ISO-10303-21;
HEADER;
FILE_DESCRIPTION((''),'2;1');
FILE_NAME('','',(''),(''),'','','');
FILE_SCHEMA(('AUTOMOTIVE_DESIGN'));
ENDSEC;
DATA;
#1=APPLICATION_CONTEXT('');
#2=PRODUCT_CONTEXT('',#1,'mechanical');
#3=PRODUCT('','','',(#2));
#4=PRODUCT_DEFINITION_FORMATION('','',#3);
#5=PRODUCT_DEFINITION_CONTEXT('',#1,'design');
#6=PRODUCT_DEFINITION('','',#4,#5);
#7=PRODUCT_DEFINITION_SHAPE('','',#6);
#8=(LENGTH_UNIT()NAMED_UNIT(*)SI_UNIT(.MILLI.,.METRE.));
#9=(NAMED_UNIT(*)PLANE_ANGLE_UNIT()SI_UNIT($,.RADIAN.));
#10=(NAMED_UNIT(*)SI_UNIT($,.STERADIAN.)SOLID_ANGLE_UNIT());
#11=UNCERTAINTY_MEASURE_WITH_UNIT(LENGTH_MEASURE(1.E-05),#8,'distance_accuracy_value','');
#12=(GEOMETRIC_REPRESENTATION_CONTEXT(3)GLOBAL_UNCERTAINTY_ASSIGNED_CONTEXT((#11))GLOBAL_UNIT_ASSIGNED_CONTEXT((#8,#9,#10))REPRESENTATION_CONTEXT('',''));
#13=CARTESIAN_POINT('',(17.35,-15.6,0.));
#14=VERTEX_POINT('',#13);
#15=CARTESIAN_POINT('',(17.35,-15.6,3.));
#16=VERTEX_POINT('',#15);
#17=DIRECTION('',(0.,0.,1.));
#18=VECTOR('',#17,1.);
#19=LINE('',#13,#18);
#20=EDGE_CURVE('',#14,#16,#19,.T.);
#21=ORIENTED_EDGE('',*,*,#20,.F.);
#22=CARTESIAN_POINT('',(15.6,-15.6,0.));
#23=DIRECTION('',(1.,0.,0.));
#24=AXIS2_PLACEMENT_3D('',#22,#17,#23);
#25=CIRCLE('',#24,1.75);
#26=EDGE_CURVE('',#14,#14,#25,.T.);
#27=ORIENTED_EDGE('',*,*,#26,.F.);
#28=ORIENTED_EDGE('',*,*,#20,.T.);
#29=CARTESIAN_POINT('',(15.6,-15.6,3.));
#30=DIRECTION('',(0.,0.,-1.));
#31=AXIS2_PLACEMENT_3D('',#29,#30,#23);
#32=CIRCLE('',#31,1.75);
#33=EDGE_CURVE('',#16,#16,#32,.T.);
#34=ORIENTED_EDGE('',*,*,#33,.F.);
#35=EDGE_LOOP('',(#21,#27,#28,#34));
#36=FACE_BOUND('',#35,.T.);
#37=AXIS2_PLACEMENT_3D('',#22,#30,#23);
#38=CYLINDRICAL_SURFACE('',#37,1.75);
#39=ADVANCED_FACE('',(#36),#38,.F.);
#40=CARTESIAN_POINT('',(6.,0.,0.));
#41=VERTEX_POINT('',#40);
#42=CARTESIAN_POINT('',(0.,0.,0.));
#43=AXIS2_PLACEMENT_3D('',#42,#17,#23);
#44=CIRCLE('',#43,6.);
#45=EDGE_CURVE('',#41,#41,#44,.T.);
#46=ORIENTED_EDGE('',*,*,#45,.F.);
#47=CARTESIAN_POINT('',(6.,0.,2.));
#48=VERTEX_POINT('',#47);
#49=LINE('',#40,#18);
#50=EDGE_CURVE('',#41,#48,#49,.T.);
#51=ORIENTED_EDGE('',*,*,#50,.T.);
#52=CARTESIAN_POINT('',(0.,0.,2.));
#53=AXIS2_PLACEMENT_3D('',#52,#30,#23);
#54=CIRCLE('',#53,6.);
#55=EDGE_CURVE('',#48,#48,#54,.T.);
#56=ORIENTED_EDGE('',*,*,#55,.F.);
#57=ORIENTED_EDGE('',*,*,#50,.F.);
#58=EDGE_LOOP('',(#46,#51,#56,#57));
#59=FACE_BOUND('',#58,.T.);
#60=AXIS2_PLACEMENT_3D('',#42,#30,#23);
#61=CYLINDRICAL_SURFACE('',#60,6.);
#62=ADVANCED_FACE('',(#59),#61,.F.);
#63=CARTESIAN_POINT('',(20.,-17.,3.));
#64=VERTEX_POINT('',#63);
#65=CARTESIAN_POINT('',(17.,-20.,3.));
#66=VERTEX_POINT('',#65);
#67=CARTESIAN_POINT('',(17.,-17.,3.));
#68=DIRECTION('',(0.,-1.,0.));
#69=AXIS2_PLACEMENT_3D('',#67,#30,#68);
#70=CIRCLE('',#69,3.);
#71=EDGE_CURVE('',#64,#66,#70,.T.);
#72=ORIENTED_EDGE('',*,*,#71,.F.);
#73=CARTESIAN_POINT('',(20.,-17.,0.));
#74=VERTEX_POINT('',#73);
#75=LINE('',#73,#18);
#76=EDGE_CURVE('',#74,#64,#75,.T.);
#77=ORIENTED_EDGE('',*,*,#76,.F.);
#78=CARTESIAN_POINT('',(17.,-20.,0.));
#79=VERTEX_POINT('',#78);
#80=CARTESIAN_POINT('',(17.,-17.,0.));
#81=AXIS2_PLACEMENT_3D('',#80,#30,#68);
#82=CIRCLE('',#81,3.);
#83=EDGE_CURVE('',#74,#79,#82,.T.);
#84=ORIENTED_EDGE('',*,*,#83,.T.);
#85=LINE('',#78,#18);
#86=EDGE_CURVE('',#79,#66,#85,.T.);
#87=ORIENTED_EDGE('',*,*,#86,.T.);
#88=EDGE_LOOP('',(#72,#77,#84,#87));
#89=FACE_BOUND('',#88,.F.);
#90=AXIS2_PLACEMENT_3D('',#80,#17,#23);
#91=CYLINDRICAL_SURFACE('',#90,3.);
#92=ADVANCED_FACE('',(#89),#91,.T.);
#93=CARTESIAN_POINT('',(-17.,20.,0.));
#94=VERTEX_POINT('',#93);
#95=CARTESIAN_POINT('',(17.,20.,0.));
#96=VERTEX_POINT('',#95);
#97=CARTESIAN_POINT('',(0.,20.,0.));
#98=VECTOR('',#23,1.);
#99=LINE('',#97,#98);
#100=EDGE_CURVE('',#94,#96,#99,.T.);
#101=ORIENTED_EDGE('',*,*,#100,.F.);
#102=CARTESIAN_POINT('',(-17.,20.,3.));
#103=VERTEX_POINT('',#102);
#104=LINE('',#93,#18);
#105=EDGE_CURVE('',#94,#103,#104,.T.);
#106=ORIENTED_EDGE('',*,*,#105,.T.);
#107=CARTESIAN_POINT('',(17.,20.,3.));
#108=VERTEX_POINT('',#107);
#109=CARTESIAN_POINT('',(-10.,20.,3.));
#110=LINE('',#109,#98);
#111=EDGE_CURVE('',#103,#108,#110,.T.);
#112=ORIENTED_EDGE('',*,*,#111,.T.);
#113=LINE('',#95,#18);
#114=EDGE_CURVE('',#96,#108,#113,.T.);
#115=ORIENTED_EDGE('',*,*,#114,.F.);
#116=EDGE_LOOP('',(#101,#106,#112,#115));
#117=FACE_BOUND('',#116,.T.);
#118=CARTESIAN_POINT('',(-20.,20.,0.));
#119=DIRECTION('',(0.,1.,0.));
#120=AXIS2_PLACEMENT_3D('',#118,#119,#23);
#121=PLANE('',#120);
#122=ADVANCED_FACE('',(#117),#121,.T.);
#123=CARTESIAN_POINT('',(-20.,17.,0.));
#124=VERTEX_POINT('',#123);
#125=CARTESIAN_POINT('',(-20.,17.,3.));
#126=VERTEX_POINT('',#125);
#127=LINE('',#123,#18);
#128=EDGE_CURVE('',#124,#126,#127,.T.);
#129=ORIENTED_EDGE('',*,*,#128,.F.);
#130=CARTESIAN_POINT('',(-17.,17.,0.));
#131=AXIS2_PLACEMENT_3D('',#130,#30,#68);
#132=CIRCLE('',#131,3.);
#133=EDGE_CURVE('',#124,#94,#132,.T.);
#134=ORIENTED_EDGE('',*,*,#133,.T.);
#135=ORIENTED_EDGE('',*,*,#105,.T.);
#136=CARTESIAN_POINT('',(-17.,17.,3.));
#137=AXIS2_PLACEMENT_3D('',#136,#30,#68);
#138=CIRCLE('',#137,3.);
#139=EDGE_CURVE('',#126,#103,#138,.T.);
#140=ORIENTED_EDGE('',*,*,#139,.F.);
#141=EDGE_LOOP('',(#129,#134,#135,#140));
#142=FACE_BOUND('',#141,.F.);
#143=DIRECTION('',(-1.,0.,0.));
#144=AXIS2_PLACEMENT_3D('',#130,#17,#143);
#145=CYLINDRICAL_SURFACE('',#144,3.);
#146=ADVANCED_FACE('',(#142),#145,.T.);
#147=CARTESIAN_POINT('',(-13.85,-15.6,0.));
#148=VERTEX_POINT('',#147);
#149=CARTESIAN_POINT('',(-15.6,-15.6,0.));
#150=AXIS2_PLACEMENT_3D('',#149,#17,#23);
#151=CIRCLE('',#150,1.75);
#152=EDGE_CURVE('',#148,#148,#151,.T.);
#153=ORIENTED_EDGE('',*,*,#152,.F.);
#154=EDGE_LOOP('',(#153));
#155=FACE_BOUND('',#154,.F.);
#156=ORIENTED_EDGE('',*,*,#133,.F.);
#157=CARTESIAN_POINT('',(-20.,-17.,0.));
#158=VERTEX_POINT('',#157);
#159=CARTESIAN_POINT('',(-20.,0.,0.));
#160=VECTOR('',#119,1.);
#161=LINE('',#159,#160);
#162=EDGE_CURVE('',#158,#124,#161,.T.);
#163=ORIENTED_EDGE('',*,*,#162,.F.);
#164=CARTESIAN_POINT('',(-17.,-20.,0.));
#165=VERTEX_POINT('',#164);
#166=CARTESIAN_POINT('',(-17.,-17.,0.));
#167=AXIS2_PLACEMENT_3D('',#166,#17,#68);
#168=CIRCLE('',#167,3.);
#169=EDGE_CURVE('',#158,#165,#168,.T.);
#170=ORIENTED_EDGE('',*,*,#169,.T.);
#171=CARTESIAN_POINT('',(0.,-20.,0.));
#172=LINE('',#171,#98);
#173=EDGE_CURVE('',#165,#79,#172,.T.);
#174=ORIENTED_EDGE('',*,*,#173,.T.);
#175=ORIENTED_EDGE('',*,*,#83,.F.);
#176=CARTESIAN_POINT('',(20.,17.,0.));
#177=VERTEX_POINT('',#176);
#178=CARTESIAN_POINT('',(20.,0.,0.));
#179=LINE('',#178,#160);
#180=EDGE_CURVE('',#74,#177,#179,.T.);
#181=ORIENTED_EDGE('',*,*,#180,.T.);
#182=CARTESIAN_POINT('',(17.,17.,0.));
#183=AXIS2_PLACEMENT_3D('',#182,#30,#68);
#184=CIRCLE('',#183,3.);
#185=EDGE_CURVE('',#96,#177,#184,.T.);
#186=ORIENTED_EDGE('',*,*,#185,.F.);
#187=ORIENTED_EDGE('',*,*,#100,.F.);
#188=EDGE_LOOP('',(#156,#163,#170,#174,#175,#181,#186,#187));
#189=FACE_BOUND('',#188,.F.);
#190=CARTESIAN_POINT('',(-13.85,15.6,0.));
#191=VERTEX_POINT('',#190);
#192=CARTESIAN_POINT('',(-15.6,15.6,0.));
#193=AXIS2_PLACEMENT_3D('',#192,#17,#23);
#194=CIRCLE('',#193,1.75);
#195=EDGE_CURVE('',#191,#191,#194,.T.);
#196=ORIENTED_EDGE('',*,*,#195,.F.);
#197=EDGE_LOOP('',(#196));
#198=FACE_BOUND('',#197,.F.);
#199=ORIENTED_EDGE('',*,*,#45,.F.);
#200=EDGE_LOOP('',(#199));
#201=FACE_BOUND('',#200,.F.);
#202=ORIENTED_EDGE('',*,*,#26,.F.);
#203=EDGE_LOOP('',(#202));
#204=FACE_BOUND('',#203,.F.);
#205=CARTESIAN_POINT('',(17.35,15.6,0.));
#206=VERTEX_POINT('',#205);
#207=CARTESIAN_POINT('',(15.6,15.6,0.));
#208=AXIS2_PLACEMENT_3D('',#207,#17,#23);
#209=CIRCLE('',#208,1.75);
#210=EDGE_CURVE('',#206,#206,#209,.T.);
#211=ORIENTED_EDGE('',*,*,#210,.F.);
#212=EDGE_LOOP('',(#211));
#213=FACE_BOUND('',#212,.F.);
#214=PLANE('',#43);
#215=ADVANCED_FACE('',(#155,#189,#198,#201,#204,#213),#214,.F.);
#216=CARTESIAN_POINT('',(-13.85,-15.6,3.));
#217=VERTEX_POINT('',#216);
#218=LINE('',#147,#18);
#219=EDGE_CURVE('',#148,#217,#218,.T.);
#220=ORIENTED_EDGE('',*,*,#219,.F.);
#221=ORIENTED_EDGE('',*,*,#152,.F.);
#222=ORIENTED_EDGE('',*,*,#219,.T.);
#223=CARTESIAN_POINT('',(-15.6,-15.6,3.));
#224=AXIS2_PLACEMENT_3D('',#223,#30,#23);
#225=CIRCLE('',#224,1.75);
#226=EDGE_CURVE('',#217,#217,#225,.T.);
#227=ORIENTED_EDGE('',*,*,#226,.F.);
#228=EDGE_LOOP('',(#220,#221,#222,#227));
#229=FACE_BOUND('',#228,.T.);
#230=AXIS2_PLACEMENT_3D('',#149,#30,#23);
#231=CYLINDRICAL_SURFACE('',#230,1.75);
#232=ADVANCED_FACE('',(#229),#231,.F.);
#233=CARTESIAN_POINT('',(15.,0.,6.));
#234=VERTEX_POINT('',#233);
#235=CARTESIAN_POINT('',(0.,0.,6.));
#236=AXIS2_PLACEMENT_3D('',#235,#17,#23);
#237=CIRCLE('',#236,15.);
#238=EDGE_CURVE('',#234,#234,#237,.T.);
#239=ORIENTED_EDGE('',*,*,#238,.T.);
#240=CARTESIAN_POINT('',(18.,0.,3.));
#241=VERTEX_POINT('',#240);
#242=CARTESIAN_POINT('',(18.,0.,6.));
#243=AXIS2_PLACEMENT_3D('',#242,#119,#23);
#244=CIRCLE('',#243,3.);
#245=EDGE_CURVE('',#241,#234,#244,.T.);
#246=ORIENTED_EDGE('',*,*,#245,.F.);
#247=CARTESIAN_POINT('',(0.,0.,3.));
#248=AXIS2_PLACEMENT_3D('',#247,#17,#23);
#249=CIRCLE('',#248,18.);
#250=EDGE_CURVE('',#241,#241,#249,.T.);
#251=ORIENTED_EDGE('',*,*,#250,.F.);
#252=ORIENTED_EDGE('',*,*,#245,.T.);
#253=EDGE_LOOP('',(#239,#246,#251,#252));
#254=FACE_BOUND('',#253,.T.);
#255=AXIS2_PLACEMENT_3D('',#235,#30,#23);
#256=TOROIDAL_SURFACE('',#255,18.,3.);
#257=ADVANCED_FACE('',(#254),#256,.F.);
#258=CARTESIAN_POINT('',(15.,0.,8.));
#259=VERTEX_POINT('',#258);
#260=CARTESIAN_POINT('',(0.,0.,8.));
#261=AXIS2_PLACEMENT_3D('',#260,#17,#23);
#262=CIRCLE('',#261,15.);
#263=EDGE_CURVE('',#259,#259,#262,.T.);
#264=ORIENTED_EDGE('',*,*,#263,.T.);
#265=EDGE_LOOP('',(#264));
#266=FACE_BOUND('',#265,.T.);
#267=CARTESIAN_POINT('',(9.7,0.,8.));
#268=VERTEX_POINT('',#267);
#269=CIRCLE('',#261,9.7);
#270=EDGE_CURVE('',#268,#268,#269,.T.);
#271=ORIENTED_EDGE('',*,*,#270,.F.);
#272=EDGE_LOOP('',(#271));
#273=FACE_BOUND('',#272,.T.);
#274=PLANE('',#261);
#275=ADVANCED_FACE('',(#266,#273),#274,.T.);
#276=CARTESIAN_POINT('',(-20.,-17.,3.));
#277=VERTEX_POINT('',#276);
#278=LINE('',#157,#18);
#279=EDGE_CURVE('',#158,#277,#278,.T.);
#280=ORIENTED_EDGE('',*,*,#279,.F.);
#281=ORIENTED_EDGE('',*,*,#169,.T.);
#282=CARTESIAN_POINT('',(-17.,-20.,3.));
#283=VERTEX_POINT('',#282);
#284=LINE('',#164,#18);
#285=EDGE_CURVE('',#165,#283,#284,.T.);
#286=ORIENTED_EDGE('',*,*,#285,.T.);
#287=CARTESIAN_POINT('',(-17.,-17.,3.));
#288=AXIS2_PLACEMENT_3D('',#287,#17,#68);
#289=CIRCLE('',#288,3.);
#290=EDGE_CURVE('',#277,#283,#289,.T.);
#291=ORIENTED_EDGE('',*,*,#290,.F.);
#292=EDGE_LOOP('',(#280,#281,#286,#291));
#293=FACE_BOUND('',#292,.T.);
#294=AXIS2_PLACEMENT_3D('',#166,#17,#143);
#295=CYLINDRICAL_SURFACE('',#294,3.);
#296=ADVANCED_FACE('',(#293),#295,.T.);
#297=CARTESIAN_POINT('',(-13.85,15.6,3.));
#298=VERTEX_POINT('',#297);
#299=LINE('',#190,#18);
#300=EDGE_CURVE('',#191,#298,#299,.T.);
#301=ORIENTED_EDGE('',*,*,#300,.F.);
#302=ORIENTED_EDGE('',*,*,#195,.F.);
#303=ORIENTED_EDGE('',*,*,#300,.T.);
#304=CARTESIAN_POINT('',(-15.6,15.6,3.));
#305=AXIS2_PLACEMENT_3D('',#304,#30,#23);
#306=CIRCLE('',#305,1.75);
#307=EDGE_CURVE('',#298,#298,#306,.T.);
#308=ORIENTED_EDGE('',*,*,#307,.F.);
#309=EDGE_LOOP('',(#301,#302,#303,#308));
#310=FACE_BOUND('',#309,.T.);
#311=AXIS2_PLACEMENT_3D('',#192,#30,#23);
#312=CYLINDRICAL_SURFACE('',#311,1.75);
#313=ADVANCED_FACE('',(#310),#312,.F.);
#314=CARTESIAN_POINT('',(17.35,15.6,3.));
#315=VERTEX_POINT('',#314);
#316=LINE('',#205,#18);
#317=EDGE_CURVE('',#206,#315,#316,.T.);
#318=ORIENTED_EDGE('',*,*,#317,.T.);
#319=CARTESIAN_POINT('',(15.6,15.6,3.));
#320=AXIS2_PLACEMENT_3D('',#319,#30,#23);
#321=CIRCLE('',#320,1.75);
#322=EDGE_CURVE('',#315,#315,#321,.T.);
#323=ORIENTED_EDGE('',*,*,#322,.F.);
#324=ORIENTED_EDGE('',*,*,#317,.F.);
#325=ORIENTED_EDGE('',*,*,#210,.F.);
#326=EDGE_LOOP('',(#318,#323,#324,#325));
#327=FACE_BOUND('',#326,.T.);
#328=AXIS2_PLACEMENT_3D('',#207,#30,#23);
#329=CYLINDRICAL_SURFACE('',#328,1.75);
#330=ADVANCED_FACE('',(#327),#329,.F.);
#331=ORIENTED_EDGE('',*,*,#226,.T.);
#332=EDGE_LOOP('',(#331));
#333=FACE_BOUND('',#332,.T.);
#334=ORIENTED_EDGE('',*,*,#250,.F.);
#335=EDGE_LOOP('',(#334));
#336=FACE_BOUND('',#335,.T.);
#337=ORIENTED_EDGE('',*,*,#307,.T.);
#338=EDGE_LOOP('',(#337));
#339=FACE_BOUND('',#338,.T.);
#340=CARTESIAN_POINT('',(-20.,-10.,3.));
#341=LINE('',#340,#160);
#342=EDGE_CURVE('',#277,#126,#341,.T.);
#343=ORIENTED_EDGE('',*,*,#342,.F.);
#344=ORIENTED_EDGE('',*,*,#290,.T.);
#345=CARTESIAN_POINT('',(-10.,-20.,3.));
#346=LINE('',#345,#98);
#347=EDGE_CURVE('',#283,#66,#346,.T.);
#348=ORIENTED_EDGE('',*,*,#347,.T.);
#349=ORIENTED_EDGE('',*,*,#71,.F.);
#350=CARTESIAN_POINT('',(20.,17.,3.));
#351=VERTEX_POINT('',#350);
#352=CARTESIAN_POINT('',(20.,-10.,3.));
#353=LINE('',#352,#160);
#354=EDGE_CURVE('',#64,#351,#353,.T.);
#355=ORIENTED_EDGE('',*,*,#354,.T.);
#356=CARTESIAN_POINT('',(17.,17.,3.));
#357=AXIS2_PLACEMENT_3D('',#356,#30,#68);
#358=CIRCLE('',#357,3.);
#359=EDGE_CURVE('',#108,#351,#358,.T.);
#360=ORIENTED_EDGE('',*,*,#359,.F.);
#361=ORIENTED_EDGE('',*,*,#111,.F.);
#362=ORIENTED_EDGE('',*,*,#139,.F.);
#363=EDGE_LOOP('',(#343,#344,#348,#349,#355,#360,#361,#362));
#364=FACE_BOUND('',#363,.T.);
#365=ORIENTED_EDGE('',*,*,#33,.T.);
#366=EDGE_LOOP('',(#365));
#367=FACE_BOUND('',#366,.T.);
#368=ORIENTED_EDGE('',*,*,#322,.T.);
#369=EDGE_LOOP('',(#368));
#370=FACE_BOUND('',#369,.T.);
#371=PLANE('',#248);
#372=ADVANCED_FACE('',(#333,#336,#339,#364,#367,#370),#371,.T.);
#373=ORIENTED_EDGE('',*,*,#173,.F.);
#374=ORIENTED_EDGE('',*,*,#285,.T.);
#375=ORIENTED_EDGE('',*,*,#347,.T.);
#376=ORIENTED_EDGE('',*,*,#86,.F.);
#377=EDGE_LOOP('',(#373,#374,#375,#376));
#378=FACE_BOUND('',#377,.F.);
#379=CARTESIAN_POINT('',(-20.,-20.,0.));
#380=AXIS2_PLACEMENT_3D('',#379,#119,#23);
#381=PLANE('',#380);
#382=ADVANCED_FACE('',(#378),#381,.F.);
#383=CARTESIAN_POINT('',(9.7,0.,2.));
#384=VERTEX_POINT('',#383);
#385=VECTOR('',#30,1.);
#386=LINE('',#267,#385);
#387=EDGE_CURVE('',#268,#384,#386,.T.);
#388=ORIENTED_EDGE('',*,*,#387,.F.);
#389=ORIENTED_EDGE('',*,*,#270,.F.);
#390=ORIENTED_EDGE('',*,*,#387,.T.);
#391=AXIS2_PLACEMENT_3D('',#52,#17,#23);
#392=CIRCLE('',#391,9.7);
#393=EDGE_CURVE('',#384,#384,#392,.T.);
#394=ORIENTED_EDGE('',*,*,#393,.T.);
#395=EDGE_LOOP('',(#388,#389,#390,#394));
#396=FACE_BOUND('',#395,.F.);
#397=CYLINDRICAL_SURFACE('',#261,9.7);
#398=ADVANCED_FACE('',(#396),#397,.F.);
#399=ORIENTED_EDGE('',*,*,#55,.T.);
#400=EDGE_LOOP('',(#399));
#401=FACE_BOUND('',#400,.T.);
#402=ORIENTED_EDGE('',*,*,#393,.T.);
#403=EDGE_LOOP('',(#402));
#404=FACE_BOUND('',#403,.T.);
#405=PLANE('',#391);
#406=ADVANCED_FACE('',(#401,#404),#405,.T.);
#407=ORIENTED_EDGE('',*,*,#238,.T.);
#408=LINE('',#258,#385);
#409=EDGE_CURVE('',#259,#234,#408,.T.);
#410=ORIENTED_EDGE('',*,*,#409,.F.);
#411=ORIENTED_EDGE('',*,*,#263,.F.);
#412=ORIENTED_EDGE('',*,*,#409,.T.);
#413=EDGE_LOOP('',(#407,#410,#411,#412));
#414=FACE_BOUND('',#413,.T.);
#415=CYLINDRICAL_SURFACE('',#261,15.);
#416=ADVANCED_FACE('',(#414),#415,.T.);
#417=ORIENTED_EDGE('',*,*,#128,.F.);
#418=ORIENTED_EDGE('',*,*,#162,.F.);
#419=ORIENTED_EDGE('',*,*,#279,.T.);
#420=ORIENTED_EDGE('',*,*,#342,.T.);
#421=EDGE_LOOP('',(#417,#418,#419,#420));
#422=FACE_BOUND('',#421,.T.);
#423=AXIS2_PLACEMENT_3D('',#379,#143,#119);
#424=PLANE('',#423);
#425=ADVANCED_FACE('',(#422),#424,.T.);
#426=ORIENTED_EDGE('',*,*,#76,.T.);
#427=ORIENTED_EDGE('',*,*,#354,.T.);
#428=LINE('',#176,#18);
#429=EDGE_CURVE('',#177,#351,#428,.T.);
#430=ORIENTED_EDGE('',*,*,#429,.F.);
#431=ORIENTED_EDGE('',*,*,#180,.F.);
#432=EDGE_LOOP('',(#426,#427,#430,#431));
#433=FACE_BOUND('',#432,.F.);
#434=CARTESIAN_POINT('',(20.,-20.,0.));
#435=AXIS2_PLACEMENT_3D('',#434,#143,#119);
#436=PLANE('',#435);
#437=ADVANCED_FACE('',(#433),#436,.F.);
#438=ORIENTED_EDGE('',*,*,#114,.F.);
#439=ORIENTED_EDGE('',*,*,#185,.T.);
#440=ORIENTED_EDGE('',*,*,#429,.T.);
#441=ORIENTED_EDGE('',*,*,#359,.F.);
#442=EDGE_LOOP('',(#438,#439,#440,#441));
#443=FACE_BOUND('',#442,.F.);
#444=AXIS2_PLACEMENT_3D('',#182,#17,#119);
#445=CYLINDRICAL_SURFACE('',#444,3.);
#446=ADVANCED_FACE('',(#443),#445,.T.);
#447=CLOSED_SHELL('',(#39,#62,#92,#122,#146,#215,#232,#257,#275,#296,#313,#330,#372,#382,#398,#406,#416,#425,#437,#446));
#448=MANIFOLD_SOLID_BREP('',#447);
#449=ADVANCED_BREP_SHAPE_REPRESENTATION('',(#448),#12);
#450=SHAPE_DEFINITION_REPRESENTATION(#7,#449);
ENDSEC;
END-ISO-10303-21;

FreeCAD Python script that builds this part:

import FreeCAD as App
import Part
import Sketcher

V = App.Vector
Q = App.Units.Quantity


def edges_at(feature, points):
    """Names of the edges that pass closest to the given points."""
    edges = feature.Shape.Edges
    near = lambda p: min(range(len(edges)), key=lambda i: edges[i].distToShape(Part.Vertex(*p))[0])
    return sorted({f"Edge{near(p) + 1}" for p in points})

doc = App.newDocument("Part")
body = doc.addObject("PartDesign::Body", "Body")

# Sketch on XY plane
sketch1 = doc.addObject("Sketcher::SketchObject", "Sketch")
body.addObject(sketch1)
sketch1.AttachmentSupport = (doc.XY_Plane, [""])
sketch1.MapMode = "FlatFace"
sketch1.addGeometry(Part.LineSegment(V(-20, 20, 0), V(-20, -20, 0)), False)
sketch1.addGeometry(Part.LineSegment(V(-20, -20, 0), V(20, -20, 0)), False)
sketch1.addGeometry(Part.LineSegment(V(20, -20, 0), V(20, 20, 0)), False)
sketch1.addGeometry(Part.LineSegment(V(20, 20, 0), V(-20, 20, 0)), False)
sketch1.addGeometry(Part.Circle(V(-15.6, -15.6, 0), V(0, 0, 1), 1.8), False)
sketch1.addGeometry(Part.Circle(V(15.6, -15.6, 0), V(0, 0, 1), 1.8), False)
sketch1.addGeometry(Part.Circle(V(-15.6, 15.6, 0), V(0, 0, 1), 1.8), False)
sketch1.addGeometry(Part.Circle(V(0, 0, 0), V(0, 0, 1), 6), False)
sketch1.addGeometry(Part.Circle(V(15.6, 15.6, 0), V(0, 0, 1), 1.8), False)
sketch1.addConstraint(Sketcher.Constraint("Coincident", 0, 2, 1, 1))
sketch1.addConstraint(Sketcher.Constraint("Coincident", 1, 2, 2, 1))
sketch1.addConstraint(Sketcher.Constraint("Coincident", 2, 2, 3, 1))
sketch1.addConstraint(Sketcher.Constraint("Coincident", 3, 2, 0, 1))
sketch1.addConstraint(Sketcher.Constraint("Vertical", 0))
sketch1.addConstraint(Sketcher.Constraint("Horizontal", 1))
sketch1.addConstraint(Sketcher.Constraint("Vertical", 2))
sketch1.addConstraint(Sketcher.Constraint("Horizontal", 3))
sketch1.addConstraint(Sketcher.Constraint("Coincident", 7, 3, -1, 1))
sketch1.addConstraint(Sketcher.Constraint("Equal", 4, 5))
sketch1.addConstraint(Sketcher.Constraint("Equal", 5, 6))
sketch1.addConstraint(Sketcher.Constraint("Equal", 6, 8))
sketch1.addConstraint(Sketcher.Constraint("Symmetric", 5, 3, 6, 3, -1, 1))
sketch1.addConstraint(Sketcher.Constraint("Symmetric", 4, 3, 8, 3, -1, 1))
sketch1.addConstraint(Sketcher.Constraint("Symmetric", 0, 2, 2, 2, -1, 1))
sketch1.addConstraint(Sketcher.Constraint("Symmetric", 4, 3, 5, 3, -2))
sketch1.addConstraint(Sketcher.Constraint("Equal", 3, 0))
sketch1.addConstraint(Sketcher.Constraint("Diameter", 7, Q("12 mm")))
sketch1.addConstraint(Sketcher.Constraint("Diameter", 4, Q("3.5 mm")))
sketch1.addConstraint(Sketcher.Constraint("DistanceX", 1, 1, 1, 2, Q("40 mm")))
sketch1.addConstraint(Sketcher.Constraint("DistanceX", 4, 3, -1, 1, Q("15.6 mm")))
sketch1.addConstraint(Sketcher.Constraint("DistanceY", 4, 3, -1, 1, Q("15.6 mm")))
pad1 = doc.addObject("PartDesign::Pad", "Pad")
body.addObject(pad1)
pad1.Profile = sketch1
pad1.Length = 8

# Sketch on XY plane
sketch2 = doc.addObject("Sketcher::SketchObject", "Sketch001")
body.addObject(sketch2)
sketch2.AttachmentSupport = (doc.XY_Plane, [""])
sketch2.MapMode = "FlatFace"
sketch2.AttachmentOffset = App.Placement(V(0, 0, 8), App.Rotation())
sketch2.addGeometry(Part.Circle(V(0, 0, 0), V(0, 0, 1), 10), False)
sketch2.addConstraint(Sketcher.Constraint("Coincident", 0, 3, -1, 1))
sketch2.addConstraint(Sketcher.Constraint("Diameter", 0, Q("19.4 mm")))
pocket1 = doc.addObject("PartDesign::Pocket", "Pocket")
body.addObject(pocket1)
pocket1.Profile = sketch2
pocket1.Length = 6

# Sketch on XY plane
sketch3 = doc.addObject("Sketcher::SketchObject", "Sketch002")
body.addObject(sketch3)
sketch3.AttachmentSupport = (doc.XY_Plane, [""])
sketch3.MapMode = "FlatFace"
sketch3.AttachmentOffset = App.Placement(V(0, 0, 8), App.Rotation())
sketch3.addGeometry(Part.LineSegment(V(-21, 21, 0), V(-21, -21, 0)), False)
sketch3.addGeometry(Part.LineSegment(V(-21, -21, 0), V(21, -21, 0)), False)
sketch3.addGeometry(Part.LineSegment(V(21, -21, 0), V(21, 21, 0)), False)
sketch3.addGeometry(Part.LineSegment(V(21, 21, 0), V(-21, 21, 0)), False)
sketch3.addGeometry(Part.Circle(V(0, 0, 0), V(0, 0, 1), 15), False)
sketch3.addConstraint(Sketcher.Constraint("Coincident", 0, 2, 1, 1))
sketch3.addConstraint(Sketcher.Constraint("Coincident", 1, 2, 2, 1))
sketch3.addConstraint(Sketcher.Constraint("Coincident", 2, 2, 3, 1))
sketch3.addConstraint(Sketcher.Constraint("Coincident", 3, 2, 0, 1))
sketch3.addConstraint(Sketcher.Constraint("Vertical", 0))
sketch3.addConstraint(Sketcher.Constraint("Horizontal", 1))
sketch3.addConstraint(Sketcher.Constraint("Vertical", 2))
sketch3.addConstraint(Sketcher.Constraint("Horizontal", 3))
sketch3.addConstraint(Sketcher.Constraint("Coincident", 4, 3, -1, 1))
sketch3.addConstraint(Sketcher.Constraint("Symmetric", 0, 2, 2, 2, -1, 1))
sketch3.addConstraint(Sketcher.Constraint("Equal", 3, 0))
sketch3.addConstraint(Sketcher.Constraint("Diameter", 4, Q("30 mm")))
sketch3.addConstraint(Sketcher.Constraint("DistanceX", 1, 1, 1, 2, Q("42 mm")))
pocket2 = doc.addObject("PartDesign::Pocket", "Pocket001")
body.addObject(pocket2)
pocket2.Profile = sketch3
pocket2.Length = 5
doc.recompute()

fillet = doc.addObject("PartDesign::Fillet", "Fillet")
body.addObject(fillet)
fillet.Base = (pocket2, edges_at(pocket2, [(-15, 0, 3)]))
fillet.Radius = 3
doc.recompute()

fillet2 = doc.addObject("PartDesign::Fillet", "Fillet001")
body.addObject(fillet2)
fillet2.Base = (fillet, edges_at(fillet, [
    (-20, 20, 1.5),
    (20, 20, 1.5),
    (20, -20, 1.5),
    (-20, -20, 1.5),
]))
fillet2.Radius = 3

doc.recompute()
